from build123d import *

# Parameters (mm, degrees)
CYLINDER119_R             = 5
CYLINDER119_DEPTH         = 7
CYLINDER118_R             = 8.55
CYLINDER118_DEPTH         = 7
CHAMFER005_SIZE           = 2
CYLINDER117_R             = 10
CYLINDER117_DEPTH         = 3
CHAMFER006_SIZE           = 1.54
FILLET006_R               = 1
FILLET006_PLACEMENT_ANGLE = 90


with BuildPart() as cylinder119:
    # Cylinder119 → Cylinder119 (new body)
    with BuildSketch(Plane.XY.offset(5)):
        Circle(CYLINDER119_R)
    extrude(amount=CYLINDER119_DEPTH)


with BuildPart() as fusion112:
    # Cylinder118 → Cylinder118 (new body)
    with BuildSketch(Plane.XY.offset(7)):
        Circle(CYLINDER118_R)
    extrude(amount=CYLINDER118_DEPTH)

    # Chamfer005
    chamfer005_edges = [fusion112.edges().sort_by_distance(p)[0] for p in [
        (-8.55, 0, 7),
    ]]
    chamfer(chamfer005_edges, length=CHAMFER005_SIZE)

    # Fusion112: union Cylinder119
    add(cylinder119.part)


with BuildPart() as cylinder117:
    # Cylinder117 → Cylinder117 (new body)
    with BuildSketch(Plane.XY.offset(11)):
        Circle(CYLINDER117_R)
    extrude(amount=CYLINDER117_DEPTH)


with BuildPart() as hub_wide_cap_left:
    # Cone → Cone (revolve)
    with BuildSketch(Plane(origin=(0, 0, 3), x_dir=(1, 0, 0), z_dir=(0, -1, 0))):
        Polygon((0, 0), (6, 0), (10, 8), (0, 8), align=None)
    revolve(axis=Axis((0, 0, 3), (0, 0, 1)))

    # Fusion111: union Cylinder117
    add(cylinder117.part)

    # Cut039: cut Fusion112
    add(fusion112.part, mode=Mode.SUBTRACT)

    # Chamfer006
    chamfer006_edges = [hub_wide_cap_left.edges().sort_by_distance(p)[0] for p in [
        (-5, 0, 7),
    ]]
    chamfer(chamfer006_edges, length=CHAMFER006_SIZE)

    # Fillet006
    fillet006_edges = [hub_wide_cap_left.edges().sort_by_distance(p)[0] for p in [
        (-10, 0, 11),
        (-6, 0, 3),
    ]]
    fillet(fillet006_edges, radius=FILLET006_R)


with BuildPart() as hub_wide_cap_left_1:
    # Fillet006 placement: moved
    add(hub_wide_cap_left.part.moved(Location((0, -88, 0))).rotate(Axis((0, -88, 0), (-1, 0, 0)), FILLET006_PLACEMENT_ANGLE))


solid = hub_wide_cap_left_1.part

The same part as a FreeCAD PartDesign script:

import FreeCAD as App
import Part
import Sketcher

V = App.Vector
Q = App.Units.Quantity


def edges_at(feature, points):
    """Names of the edges that pass closest to the given points."""
    edges = feature.Shape.Edges
    near = lambda p: min(range(len(edges)), key=lambda i: edges[i].distToShape(Part.Vertex(*p))[0])
    return sorted({f"Edge{near(p) + 1}" for p in points})


def add_polygon(sketch, points):
    """Adds a closed chain of lines whose ends are joined by coincident constraints."""
    first, n = sketch.GeometryCount, len(points)
    for a, b in zip(points, points[1:] + points[:1]):
        sketch.addGeometry(Part.LineSegment(App.Vector(*a, 0), App.Vector(*b, 0)), False)
    for i in range(n):
        sketch.addConstraint(Sketcher.Constraint("Coincident", first + i, 2, first + (i + 1) % n, 1))

doc = App.newDocument("Part")
body = doc.addObject("PartDesign::Body", "Body")

# Sketch on XY plane
sketch1 = body.newObject("Sketcher::SketchObject", "Sketch")
sketch1.AttachmentSupport = (doc.getObject("XY_Plane"), [""])
sketch1.MapMode = "FlatFace"
sketch1.AttachmentOffset = App.Placement(V(0, 0, 5), App.Rotation())
sketch1.addGeometry(Part.Circle(V(0, 0, 0), V(0, 0, 1), 5), False)
sketch1.addConstraint([
    Sketcher.Constraint("Coincident", 0, 3, -1, 1),
    Sketcher.Constraint("Diameter", 0, Q("10 mm")),
])
pad1 = body.newObject("PartDesign::Pad", "Pad")
pad1.Profile = sketch1
pad1.Length = 7
body2 = doc.addObject("PartDesign::Body", "Body001")

# Sketch on XY plane
sketch2 = body2.newObject("Sketcher::SketchObject", "Sketch001")
sketch2.AttachmentSupport = (doc.getObject("XY_Plane001"), [""])
sketch2.MapMode = "FlatFace"
sketch2.AttachmentOffset = App.Placement(V(0, 0, 7), App.Rotation())
sketch2.addGeometry(Part.Circle(V(0, 0, 0), V(0, 0, 1), 9), False)
sketch2.addConstraint([
    Sketcher.Constraint("Coincident", 0, 3, -1, 1),
    Sketcher.Constraint("Diameter", 0, Q("17.1 mm")),
])
pad2 = body2.newObject("PartDesign::Pad", "Pad001")
pad2.Profile = sketch2
pad2.Length = 7
doc.recompute()

chamfer = body2.newObject("PartDesign::Chamfer", "Chamfer")
chamfer.Base = (pad2, edges_at(pad2, [(-8.55, 0, 7)]))
chamfer.Size = 2
doc.recompute()

boolean = body2.newObject("PartDesign::Boolean", "Boolean")
boolean.Type = "Fuse"
boolean.addObjects([body])
body3 = doc.addObject("PartDesign::Body", "Body002")

# Sketch on XY plane
sketch3 = body3.newObject("Sketcher::SketchObject", "Sketch002")
sketch3.AttachmentSupport = (doc.getObject("XY_Plane002"), [""])
sketch3.MapMode = "FlatFace"
sketch3.AttachmentOffset = App.Placement(V(0, 0, 11), App.Rotation())
sketch3.addGeometry(Part.Circle(V(0, 0, 0), V(0, 0, 1), 10), False)
sketch3.addConstraint([
    Sketcher.Constraint("Coincident", 0, 3, -1, 1),
    Sketcher.Constraint("Diameter", 0, Q("20 mm")),
])
pad3 = body3.newObject("PartDesign::Pad", "Pad002")
pad3.Profile = sketch3
pad3.Length = 3
body4 = doc.addObject("PartDesign::Body", "Body003")

# Sketch on XZ plane
sketch4 = body4.newObject("Sketcher::SketchObject", "Sketch003")
sketch4.AttachmentSupport = (doc.getObject("XZ_Plane003"), [""])
sketch4.MapMode = "FlatFace"
add_polygon(sketch4, [(0, 3), (6, 3), (10, 11), (0, 11)])  # lines 0-3
sketch4.addConstraint([
    Sketcher.Constraint("Horizontal", 0),
    Sketcher.Constraint("Horizontal", 2),
    Sketcher.Constraint("Vertical", 3),
    Sketcher.Constraint("PointOnObject", 2, 2, -2),
    Sketcher.Constraint("DistanceX", 0, 1, 0, 2, Q("6 mm")),
    Sketcher.Constraint("DistanceX", 2, 2, 2, 1, Q("10 mm")),
    Sketcher.Constraint("DistanceY", 3, 2, 3, 1, Q("8 mm")),
    Sketcher.Constraint("DistanceY", -1, 1, 0, 2, Q("3 mm")),
])
revolution = body4.newObject("PartDesign::Revolution", "Revolution")
revolution.Profile = sketch4
revolution.ReferenceAxis = (sketch4, ["V_Axis"])
revolution.Angle = 360
doc.recompute()

boolean2 = body4.newObject("PartDesign::Boolean", "Boolean001")
boolean2.Type = "Fuse"
boolean2.addObjects([body3])
doc.recompute()

boolean3 = body4.newObject("PartDesign::Boolean", "Boolean002")
boolean3.Type = "Cut"
boolean3.addObjects([body2])
doc.recompute()

chamfer2 = body4.newObject("PartDesign::Chamfer", "Chamfer001")
chamfer2.Base = (boolean3, edges_at(boolean3, [(-5, 0, 7)]))
chamfer2.Size = 1.54
doc.recompute()

fillet = body4.newObject("PartDesign::Fillet", "Fillet")
fillet.Base = (chamfer2, edges_at(chamfer2, [(-10, 0, 11), (-6, 0, 3)]))
fillet.Radius = 1
body5 = doc.addObject("PartDesign::Body", "Body004")
doc.recompute()

body4.Placement = App.Placement(V(0, -88, 0), App.Rotation(V(-1, 0, 0), 90))
boolean4 = body5.newObject("PartDesign::Boolean", "Boolean003")
boolean4.Type = "Fuse"
boolean4.addObjects([body4])

doc.recompute()
